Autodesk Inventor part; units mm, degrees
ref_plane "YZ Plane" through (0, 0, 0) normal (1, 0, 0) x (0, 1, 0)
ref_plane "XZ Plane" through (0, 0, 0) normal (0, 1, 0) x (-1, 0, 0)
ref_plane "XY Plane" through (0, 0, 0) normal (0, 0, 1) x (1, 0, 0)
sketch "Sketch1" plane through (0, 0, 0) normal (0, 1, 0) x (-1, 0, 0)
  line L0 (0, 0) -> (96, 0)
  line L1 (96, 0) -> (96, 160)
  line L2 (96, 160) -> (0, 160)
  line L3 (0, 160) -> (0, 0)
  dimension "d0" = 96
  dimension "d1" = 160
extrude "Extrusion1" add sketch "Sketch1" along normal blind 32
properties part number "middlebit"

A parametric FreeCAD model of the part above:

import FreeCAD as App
import Part
import Sketcher
Q = App.Units.Quantity

doc = App.newDocument("Part")
params = doc.addObject("Spreadsheet::Sheet", "Params")
for row, (alias, value) in enumerate([
    ("sketch1_width", "96 mm"),
    ("sketch1_height", "160 mm"),
    ("pad1_length", "32 mm"),
], start=1):
    params.set(f"A{row}", alias)
    params.set(f"B{row}", "=" + value)
    params.setAlias(f"B{row}", alias)

body = doc.addObject("PartDesign::Body", "Body")

sketch1 = body.newObject("Sketcher::SketchObject", "Sketch")
sketch1.AttachmentSupport = (doc.getObject("XZ_Plane"), [""])
sketch1.MapMode = "FlatFace"
sketch1.addGeometry([
    Part.LineSegment(App.Vector(0, 160, 0), App.Vector(0, 0, 0)),
    Part.LineSegment(App.Vector(0, 0, 0), App.Vector(-96, 0, 0)),
    Part.LineSegment(App.Vector(-96, 0, 0), App.Vector(-96, 160, 0)),
    Part.LineSegment(App.Vector(-96, 160, 0), App.Vector(0, 160, 0)),
], False)
sketch1.addConstraint([
    Sketcher.Constraint("Coincident", 0, 2, 1, 1),
    Sketcher.Constraint("Coincident", 1, 2, 2, 1),
    Sketcher.Constraint("Coincident", 2, 2, 3, 1),
    Sketcher.Constraint("Coincident", 3, 2, 0, 1),
    Sketcher.Constraint("Vertical", 0),
    Sketcher.Constraint("Horizontal", 1),
    Sketcher.Constraint("Vertical", 2),
    Sketcher.Constraint("Horizontal", 3),
    Sketcher.Constraint("Coincident", 0, 2, -1, 1),
    Sketcher.Constraint("DistanceX", 1, 2, 1, 1, Q("96 mm")),
    Sketcher.Constraint("DistanceY", 0, 2, 0, 1, Q("160 mm")),
])
sketch1.setExpression("Constraints[9]", "Params.sketch1_width")
sketch1.setExpression("Constraints[10]", "Params.sketch1_height")
pad1 = body.newObject("PartDesign::Pad", "Pad")
pad1.Profile = sketch1
pad1.setExpression("Length", "Params.pad1_length")
pad1.Reversed = True

doc.recompute()
